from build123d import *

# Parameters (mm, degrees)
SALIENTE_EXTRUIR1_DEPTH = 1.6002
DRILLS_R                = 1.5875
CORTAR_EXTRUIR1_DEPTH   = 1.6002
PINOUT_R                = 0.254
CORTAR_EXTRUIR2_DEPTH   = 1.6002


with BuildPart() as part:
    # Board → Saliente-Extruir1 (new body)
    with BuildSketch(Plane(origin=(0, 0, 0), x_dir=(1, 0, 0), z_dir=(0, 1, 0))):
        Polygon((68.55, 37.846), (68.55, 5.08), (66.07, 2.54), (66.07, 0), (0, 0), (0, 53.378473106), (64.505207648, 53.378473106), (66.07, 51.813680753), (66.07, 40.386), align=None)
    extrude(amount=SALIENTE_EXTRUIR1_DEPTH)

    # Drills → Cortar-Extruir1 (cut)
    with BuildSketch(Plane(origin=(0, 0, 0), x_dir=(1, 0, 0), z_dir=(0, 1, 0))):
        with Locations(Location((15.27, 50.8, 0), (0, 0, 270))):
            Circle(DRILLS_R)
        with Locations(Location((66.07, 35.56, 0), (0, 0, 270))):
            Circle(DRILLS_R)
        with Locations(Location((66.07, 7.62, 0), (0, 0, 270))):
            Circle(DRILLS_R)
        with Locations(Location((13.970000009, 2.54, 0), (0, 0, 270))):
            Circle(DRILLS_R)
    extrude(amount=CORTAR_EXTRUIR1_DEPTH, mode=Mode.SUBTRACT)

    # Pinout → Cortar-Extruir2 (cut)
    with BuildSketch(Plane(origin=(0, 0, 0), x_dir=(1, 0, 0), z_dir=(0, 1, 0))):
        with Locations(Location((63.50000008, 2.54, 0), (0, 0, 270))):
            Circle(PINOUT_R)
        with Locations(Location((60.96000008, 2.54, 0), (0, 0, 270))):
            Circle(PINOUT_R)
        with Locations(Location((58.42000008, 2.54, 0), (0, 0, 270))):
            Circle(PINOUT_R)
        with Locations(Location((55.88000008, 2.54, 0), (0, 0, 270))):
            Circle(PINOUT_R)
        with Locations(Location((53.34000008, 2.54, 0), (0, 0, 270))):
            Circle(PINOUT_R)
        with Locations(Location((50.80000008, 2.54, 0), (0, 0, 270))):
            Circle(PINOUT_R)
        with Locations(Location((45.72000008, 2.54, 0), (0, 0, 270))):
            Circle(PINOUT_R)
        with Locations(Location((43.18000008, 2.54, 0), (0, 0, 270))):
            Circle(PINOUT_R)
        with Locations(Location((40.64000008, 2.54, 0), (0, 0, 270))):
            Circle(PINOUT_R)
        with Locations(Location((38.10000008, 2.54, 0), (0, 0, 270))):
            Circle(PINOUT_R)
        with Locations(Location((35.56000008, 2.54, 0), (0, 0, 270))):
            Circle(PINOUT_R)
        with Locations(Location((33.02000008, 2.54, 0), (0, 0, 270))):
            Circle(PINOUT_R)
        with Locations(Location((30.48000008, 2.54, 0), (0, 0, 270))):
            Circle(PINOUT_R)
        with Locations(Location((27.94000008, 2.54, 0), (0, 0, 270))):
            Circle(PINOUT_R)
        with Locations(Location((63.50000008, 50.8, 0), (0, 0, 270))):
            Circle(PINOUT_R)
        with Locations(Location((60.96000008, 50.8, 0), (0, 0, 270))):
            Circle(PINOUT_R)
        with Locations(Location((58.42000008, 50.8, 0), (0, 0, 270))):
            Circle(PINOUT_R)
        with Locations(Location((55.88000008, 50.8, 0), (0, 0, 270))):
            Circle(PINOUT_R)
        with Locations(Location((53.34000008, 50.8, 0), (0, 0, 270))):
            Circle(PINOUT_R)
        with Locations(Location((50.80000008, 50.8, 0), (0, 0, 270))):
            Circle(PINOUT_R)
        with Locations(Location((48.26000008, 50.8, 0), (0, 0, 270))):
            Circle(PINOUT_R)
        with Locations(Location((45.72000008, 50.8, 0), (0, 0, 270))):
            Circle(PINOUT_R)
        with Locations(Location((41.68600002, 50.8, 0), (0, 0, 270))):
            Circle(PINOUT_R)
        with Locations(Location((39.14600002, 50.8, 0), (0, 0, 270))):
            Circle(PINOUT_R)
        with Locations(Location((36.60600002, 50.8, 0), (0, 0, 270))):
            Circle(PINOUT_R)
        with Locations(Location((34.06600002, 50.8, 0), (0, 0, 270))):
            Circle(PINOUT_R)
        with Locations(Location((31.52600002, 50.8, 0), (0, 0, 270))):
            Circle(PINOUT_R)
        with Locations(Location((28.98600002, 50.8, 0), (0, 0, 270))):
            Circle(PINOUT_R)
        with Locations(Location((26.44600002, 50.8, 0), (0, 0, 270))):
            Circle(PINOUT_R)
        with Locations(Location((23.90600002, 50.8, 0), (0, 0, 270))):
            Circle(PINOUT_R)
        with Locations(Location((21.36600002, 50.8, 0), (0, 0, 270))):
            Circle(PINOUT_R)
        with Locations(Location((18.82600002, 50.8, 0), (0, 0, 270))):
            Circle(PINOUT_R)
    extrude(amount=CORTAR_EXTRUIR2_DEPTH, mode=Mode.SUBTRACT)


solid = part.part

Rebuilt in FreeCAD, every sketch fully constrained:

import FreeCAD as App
import Part
import Sketcher
Q = App.Units.Quantity

doc = App.newDocument("Part")
body = doc.addObject("PartDesign::Body", "Body")

# Sketch on XZ plane
sketch1 = body.newObject("Sketcher::SketchObject", "Sketch")
sketch1.AttachmentSupport = (doc.getObject("XZ_Plane"), [""])
sketch1.MapMode = "FlatFace"
sketch1.addGeometry(Part.LineSegment(App.Vector(68.5, -5.1, 0), App.Vector(68.5, -37.8, 0)), False)
sketch1.addGeometry(Part.LineSegment(App.Vector(68.5, -37.8, 0), App.Vector(66.1, -40.4, 0)), False)
sketch1.addGeometry(Part.LineSegment(App.Vector(66.1, -40.4, 0), App.Vector(66.1, -51.8, 0)), False)
sketch1.addGeometry(Part.LineSegment(App.Vector(66.1, -51.8, 0), App.Vector(64.5, -53.4, 0)), False)
sketch1.addGeometry(Part.LineSegment(App.Vector(64.5, -53.4, 0), App.Vector(0, -53.4, 0)), False)
sketch1.addGeometry(Part.LineSegment(App.Vector(0, -53.4, 0), App.Vector(0, 0, 0)), False)
sketch1.addGeometry(Part.LineSegment(App.Vector(0, 0, 0), App.Vector(66.1, 0, 0)), False)
sketch1.addGeometry(Part.LineSegment(App.Vector(66.1, 0, 0), App.Vector(66.1, -2.5, 0)), False)
sketch1.addGeometry(Part.LineSegment(App.Vector(66.1, -2.5, 0), App.Vector(68.5, -5.1, 0)), False)
sketch1.addConstraint(Sketcher.Constraint("Coincident", 0, 2, 1, 1))
sketch1.addConstraint(Sketcher.Constraint("Coincident", 1, 2, 2, 1))
sketch1.addConstraint(Sketcher.Constraint("Coincident", 2, 2, 3, 1))
sketch1.addConstraint(Sketcher.Constraint("Coincident", 3, 2, 4, 1))
sketch1.addConstraint(Sketcher.Constraint("Coincident", 4, 2, 5, 1))
sketch1.addConstraint(Sketcher.Constraint("Coincident", 5, 2, 6, 1))
sketch1.addConstraint(Sketcher.Constraint("Coincident", 6, 2, 7, 1))
sketch1.addConstraint(Sketcher.Constraint("Coincident", 7, 2, 8, 1))
sketch1.addConstraint(Sketcher.Constraint("Coincident", 8, 2, 0, 1))
sketch1.addConstraint(Sketcher.Constraint("Vertical", 0))
sketch1.addConstraint(Sketcher.Constraint("Vertical", 2))
sketch1.addConstraint(Sketcher.Constraint("Horizontal", 4))
sketch1.addConstraint(Sketcher.Constraint("Vertical", 5))
sketch1.addConstraint(Sketcher.Constraint("Horizontal", 6))
sketch1.addConstraint(Sketcher.Constraint("Vertical", 7))
sketch1.addConstraint(Sketcher.Constraint("Coincident", 5, 2, -1, 1))
sketch1.addConstraint(Sketcher.Constraint("Vertical", 2, 2, 6, 2))
sketch1.addConstraint(Sketcher.Constraint("Equal", 1, 8))
sketch1.addConstraint(Sketcher.Constraint("DistanceY", 7, 2, 7, 1, Q("0.1 in")))
sketch1.addConstraint(Sketcher.Constraint("Angle", 3, Q("-135 deg")))
sketch1.addConstraint(Sketcher.Constraint("DistanceY", 0, 2, 0, 1, Q("1.29 in")))
sketch1.addConstraint(Sketcher.Constraint("DistanceY", 8, 2, -1, 1, Q("0.2 in")))
sketch1.addConstraint(Sketcher.Constraint("DistanceX", 6, 1, 6, 2, 66.07))
sketch1.addConstraint(Sketcher.Constraint("DistanceY", 2, 2, 2, 1, 11.427681))
sketch1.addConstraint(Sketcher.Constraint("DistanceX", -1, 1, 0, 2, 68.55))
sketch1.addConstraint(Sketcher.Constraint("Distance", 3, 2.212951))
pad1 = body.newObject("PartDesign::Pad", "Pad")
pad1.Profile = sketch1
pad1.Length = Q("0.063 in")
pad1.Reversed = True

# Sketch on XZ plane
sketch2 = body.newObject("Sketcher::SketchObject", "Sketch001")
sketch2.AttachmentSupport = (doc.getObject("XZ_Plane"), [""])
sketch2.MapMode = "FlatFace"
sketch2.addGeometry(Part.Circle(App.Vector(15.3, -50.8, 0), App.Vector(0, 0, 1), 1.6), False)
sketch2.addGeometry(Part.Circle(App.Vector(66.1, -35.6, 0), App.Vector(0, 0, 1), 1.6), False)
sketch2.addGeometry(Part.Circle(App.Vector(66.1, -7.6, 0), App.Vector(0, 0, 1), 1.6), False)
sketch2.addGeometry(Part.Circle(App.Vector(14, -2.5, 0), App.Vector(0, 0, 1), 1.6), False)
sketch2.addConstraint(Sketcher.Constraint("Equal", 0, 1))
sketch2.addConstraint(Sketcher.Constraint("Equal", 1, 2))
sketch2.addConstraint(Sketcher.Constraint("Equal", 2, 3))
sketch2.addConstraint(Sketcher.Constraint("Vertical", 1, 3, 2, 3))
sketch2.addConstraint(Sketcher.Constraint("Diameter", 0, Q("0.125 in")))
sketch2.addConstraint(Sketcher.Constraint("DistanceY", 0, 3, -1, 1, Q("2 in")))
sketch2.addConstraint(Sketcher.Constraint("DistanceX", 0, 3, 1, 3, Q("2 in")))
sketch2.addConstraint(Sketcher.Constraint("DistanceY", 1, 3, -1, 1, Q("1.4 in")))
sketch2.addConstraint(Sketcher.Constraint("DistanceY", 2, 3, -1, 1, Q("0.3 in")))
sketch2.addConstraint(Sketcher.Constraint("DistanceY", 3, 3, -1, 1, Q("0.1 in")))
sketch2.addConstraint(Sketcher.Constraint("DistanceX", -1, 1, 3, 3, Q("0.55 in")))
sketch2.addConstraint(Sketcher.Constraint("DistanceX", -1, 1, 0, 3, 15.27))
pocket1 = body.newObject("PartDesign::Pocket", "Pocket")
pocket1.Profile = sketch2
pocket1.Length = Q("0.063 in")

# Sketch on XZ plane
sketch3 = body.newObject("Sketcher::SketchObject", "Sketch002")
sketch3.AttachmentSupport = (doc.getObject("XZ_Plane"), [""])
sketch3.MapMode = "FlatFace"
sketch3.addGeometry(Part.Circle(App.Vector(63.5, -2.54, 0), App.Vector(0, 0, 1), 0.25), False)
sketch3.addGeometry(Part.Circle(App.Vector(60.96, -2.54, 0), App.Vector(0, 0, 1), 0.25), False)
sketch3.addGeometry(Part.Circle(App.Vector(58.42, -2.54, 0), App.Vector(0, 0, 1), 0.25), False)
sketch3.addGeometry(Part.Circle(App.Vector(55.88, -2.54, 0), App.Vector(0, 0, 1), 0.25), False)
sketch3.addGeometry(Part.Circle(App.Vector(53.34, -2.54, 0), App.Vector(0, 0, 1), 0.25), False)
sketch3.addGeometry(Part.Circle(App.Vector(50.8, -2.54, 0), App.Vector(0, 0, 1), 0.25), False)
sketch3.addGeometry(Part.Circle(App.Vector(45.72, -2.54, 0), App.Vector(0, 0, 1), 0.25), False)
sketch3.addGeometry(Part.Circle(App.Vector(43.18, -2.54, 0), App.Vector(0, 0, 1), 0.25), False)
sketch3.addGeometry(Part.Circle(App.Vector(40.64, -2.54, 0), App.Vector(0, 0, 1), 0.25), False)
sketch3.addGeometry(Part.Circle(App.Vector(38.1, -2.54, 0), App.Vector(0, 0, 1), 0.25), False)
sketch3.addGeometry(Part.Circle(App.Vector(35.56, -2.54, 0), App.Vector(0, 0, 1), 0.25), False)
sketch3.addGeometry(Part.Circle(App.Vector(33.02, -2.54, 0), App.Vector(0, 0, 1), 0.25), False)
sketch3.addGeometry(Part.Circle(App.Vector(30.48, -2.54, 0), App.Vector(0, 0, 1), 0.25), False)
sketch3.addGeometry(Part.Circle(App.Vector(27.94, -2.54, 0), App.Vector(0, 0, 1), 0.25), False)
sketch3.addGeometry(Part.Circle(App.Vector(63.5, -50.8, 0), App.Vector(0, 0, 1), 0.25), False)
sketch3.addGeometry(Part.Circle(App.Vector(60.96, -50.8, 0), App.Vector(0, 0, 1), 0.25), False)
sketch3.addGeometry(Part.Circle(App.Vector(58.42, -50.8, 0), App.Vector(0, 0, 1), 0.25), False)
sketch3.addGeometry(Part.Circle(App.Vector(55.88, -50.8, 0), App.Vector(0, 0, 1), 0.25), False)
sketch3.addGeometry(Part.Circle(App.Vector(53.34, -50.8, 0), App.Vector(0, 0, 1), 0.25), False)
sketch3.addGeometry(Part.Circle(App.Vector(50.8, -50.8, 0), App.Vector(0, 0, 1), 0.25), False)
sketch3.addGeometry(Part.Circle(App.Vector(48.26, -50.8, 0), App.Vector(0, 0, 1), 0.25), False)
sketch3.addGeometry(Part.Circle(App.Vector(45.72, -50.8, 0), App.Vector(0, 0, 1), 0.25), False)
sketch3.addGeometry(Part.Circle(App.Vector(41.69, -50.8, 0), App.Vector(0, 0, 1), 0.25), False)
sketch3.addGeometry(Part.Circle(App.Vector(39.15, -50.8, 0), App.Vector(0, 0, 1), 0.25), False)
sketch3.addGeometry(Part.Circle(App.Vector(36.61, -50.8, 0), App.Vector(0, 0, 1), 0.25), False)
sketch3.addGeometry(Part.Circle(App.Vector(34.07, -50.8, 0), App.Vector(0, 0, 1), 0.25), False)
sketch3.addGeometry(Part.Circle(App.Vector(31.53, -50.8, 0), App.Vector(0, 0, 1), 0.25), False)
sketch3.addGeometry(Part.Circle(App.Vector(28.99, -50.8, 0), App.Vector(0, 0, 1), 0.25), False)
sketch3.addGeometry(Part.Circle(App.Vector(26.45, -50.8, 0), App.Vector(0, 0, 1), 0.25), False)
sketch3.addGeometry(Part.Circle(App.Vector(23.91, -50.8, 0), App.Vector(0, 0, 1), 0.25), False)
sketch3.addGeometry(Part.Circle(App.Vector(21.37, -50.8, 0), App.Vector(0, 0, 1), 0.25), False)
sketch3.addGeometry(Part.Circle(App.Vector(18.83, -50.8, 0), App.Vector(0, 0, 1), 0.25), False)
sketch3.addConstraint(Sketcher.Constraint("Equal", 0, 1))
sketch3.addConstraint(Sketcher.Constraint("Equal", 1, 2))
sketch3.addConstraint(Sketcher.Constraint("Equal", 2, 3))
sketch3.addConstraint(Sketcher.Constraint("Equal", 3, 4))
sketch3.addConstraint(Sketcher.Constraint("Equal", 4, 5))
sketch3.addConstraint(Sketcher.Constraint("Equal", 5, 6))
sketch3.addConstraint(Sketcher.Constraint("Equal", 6, 7))
sketch3.addConstraint(Sketcher.Constraint("Equal", 7, 8))
sketch3.addConstraint(Sketcher.Constraint("Equal", 8, 9))
sketch3.addConstraint(Sketcher.Constraint("Equal", 9, 10))
sketch3.addConstraint(Sketcher.Constraint("Equal", 10, 11))
sketch3.addConstraint(Sketcher.Constraint("Equal", 11, 12))
sketch3.addConstraint(Sketcher.Constraint("Equal", 12, 13))
sketch3.addConstraint(Sketcher.Constraint("Equal", 13, 14))
sketch3.addConstraint(Sketcher.Constraint("Equal", 14, 15))
sketch3.addConstraint(Sketcher.Constraint("Equal", 15, 16))
sketch3.addConstraint(Sketcher.Constraint("Equal", 16, 17))
sketch3.addConstraint(Sketcher.Constraint("Equal", 17, 18))
sketch3.addConstraint(Sketcher.Constraint("Equal", 18, 19))
sketch3.addConstraint(Sketcher.Constraint("Equal", 19, 20))
sketch3.addConstraint(Sketcher.Constraint("Equal", 20, 21))
sketch3.addConstraint(Sketcher.Constraint("Equal", 21, 22))
sketch3.addConstraint(Sketcher.Constraint("Equal", 22, 23))
sketch3.addConstraint(Sketcher.Constraint("Equal", 23, 24))
sketch3.addConstraint(Sketcher.Constraint("Equal", 24, 25))
sketch3.addConstraint(Sketcher.Constraint("Equal", 25, 26))
sketch3.addConstraint(Sketcher.Constraint("Equal", 26, 27))
sketch3.addConstraint(Sketcher.Constraint("Equal", 27, 28))
sketch3.addConstraint(Sketcher.Constraint("Equal", 28, 29))
sketch3.addConstraint(Sketcher.Constraint("Equal", 29, 30))
sketch3.addConstraint(Sketcher.Constraint("Equal", 30, 31))
sketch3.addConstraint(Sketcher.Constraint("Horizontal", 0, 3, 1, 3))
sketch3.addConstraint(Sketcher.Constraint("Horizontal", 1, 3, 2, 3))
sketch3.addConstraint(Sketcher.Constraint("Horizontal", 2, 3, 3, 3))
sketch3.addConstraint(Sketcher.Constraint("Horizontal", 3, 3, 4, 3))
sketch3.addConstraint(Sketcher.Constraint("Horizontal", 4, 3, 5, 3))
sketch3.addConstraint(Sketcher.Constraint("Horizontal", 5, 3, 6, 3))
sketch3.addConstraint(Sketcher.Constraint("Horizontal", 6, 3, 7, 3))
sketch3.addConstraint(Sketcher.Constraint("Horizontal", 7, 3, 8, 3))
sketch3.addConstraint(Sketcher.Constraint("Horizontal", 8, 3, 9, 3))
sketch3.addConstraint(Sketcher.Constraint("Horizontal", 9, 3, 10, 3))
sketch3.addConstraint(Sketcher.Constraint("Horizontal", 10, 3, 11, 3))
sketch3.addConstraint(Sketcher.Constraint("Horizontal", 11, 3, 12, 3))
sketch3.addConstraint(Sketcher.Constraint("Horizontal", 12, 3, 13, 3))
sketch3.addConstraint(Sketcher.Constraint("Horizontal", 14, 3, 15, 3))
sketch3.addConstraint(Sketcher.Constraint("Horizontal", 15, 3, 16, 3))
sketch3.addConstraint(Sketcher.Constraint("Horizontal", 16, 3, 17, 3))
sketch3.addConstraint(Sketcher.Constraint("Horizontal", 17, 3, 18, 3))
sketch3.addConstraint(Sketcher.Constraint("Horizontal", 18, 3, 19, 3))
sketch3.addConstraint(Sketcher.Constraint("Horizontal", 19, 3, 20, 3))
sketch3.addConstraint(Sketcher.Constraint("Horizontal", 20, 3, 21, 3))
sketch3.addConstraint(Sketcher.Constraint("Horizontal", 21, 3, 22, 3))
sketch3.addConstraint(Sketcher.Constraint("Horizontal", 22, 3, 23, 3))
sketch3.addConstraint(Sketcher.Constraint("Horizontal", 23, 3, 24, 3))
sketch3.addConstraint(Sketcher.Constraint("Horizontal", 24, 3, 25, 3))
sketch3.addConstraint(Sketcher.Constraint("Horizontal", 25, 3, 26, 3))
sketch3.addConstraint(Sketcher.Constraint("Horizontal", 26, 3, 27, 3))
sketch3.addConstraint(Sketcher.Constraint("Horizontal", 27, 3, 28, 3))
sketch3.addConstraint(Sketcher.Constraint("Horizontal", 28, 3, 29, 3))
sketch3.addConstraint(Sketcher.Constraint("Horizontal", 29, 3, 30, 3))
sketch3.addConstraint(Sketcher.Constraint("Horizontal", 30, 3, 31, 3))
sketch3.addConstraint(Sketcher.Constraint("Vertical", 0, 3, 14, 3))
sketch3.addConstraint(Sketcher.Constraint("Vertical", 1, 3, 15, 3))
sketch3.addConstraint(Sketcher.Constraint("Vertical", 2, 3, 16, 3))
sketch3.addConstraint(Sketcher.Constraint("Vertical", 3, 3, 17, 3))
sketch3.addConstraint(Sketcher.Constraint("Vertical", 4, 3, 18, 3))
sketch3.addConstraint(Sketcher.Constraint("Vertical", 5, 3, 19, 3))
sketch3.addConstraint(Sketcher.Constraint("Vertical", 6, 3, 21, 3))
sketch3.addConstraint(Sketcher.Constraint("Diameter", 0, Q("0.02 in")))
sketch3.addConstraint(Sketcher.Constraint("DistanceX", -1, 1, 5, 3, Q("2 in")))
sketch3.addConstraint(Sketcher.Constraint("DistanceY", 14, 3, -1, 1, Q("2 in")))
sketch3.addConstraint(Sketcher.Constraint("DistanceX", -1, 1, 0, 3, Q("2.5 in")))
sketch3.addConstraint(Sketcher.Constraint("DistanceY", 0, 3, -1, 1, Q("0.1 in")))
sketch3.addConstraint(Sketcher.Constraint("DistanceX", -1, 1, 1, 3, Q("2.4 in")))
sketch3.addConstraint(Sketcher.Constraint("DistanceX", -1, 1, 2, 3, Q("2.3 in")))
sketch3.addConstraint(Sketcher.Constraint("DistanceX", -1, 1, 3, 3, Q("2.2 in")))
sketch3.addConstraint(Sketcher.Constraint("DistanceX", -1, 1, 4, 3, Q("2.1 in")))
sketch3.addConstraint(Sketcher.Constraint("DistanceX", -1, 1, 6, 3, Q("1.8 in")))
sketch3.addConstraint(Sketcher.Constraint("DistanceX", -1, 1, 7, 3, Q("1.7 in")))
sketch3.addConstraint(Sketcher.Constraint("DistanceX", -1, 1, 8, 3, Q("1.6 in")))
sketch3.addConstraint(Sketcher.Constraint("DistanceX", -1, 1, 9, 3, Q("1.5 in")))
sketch3.addConstraint(Sketcher.Constraint("DistanceX", -1, 1, 10, 3, Q("1.4 in")))
sketch3.addConstraint(Sketcher.Constraint("DistanceX", -1, 1, 11, 3, Q("1.3 in")))
sketch3.addConstraint(Sketcher.Constraint("DistanceX", -1, 1, 12, 3, Q("1.2 in")))
sketch3.addConstraint(Sketcher.Constraint("DistanceX", -1, 1, 13, 3, Q("1.1 in")))
sketch3.addConstraint(Sketcher.Constraint("DistanceX", -1, 1, 20, 3, Q("1.9 in")))
sketch3.addConstraint(Sketcher.Constraint("DistanceX", 23, 3, 22, 3, Q("0.1 in")))
sketch3.addConstraint(Sketcher.Constraint("DistanceX", 24, 3, 23, 3, Q("0.1 in")))
sketch3.addConstraint(Sketcher.Constraint("DistanceX", 25, 3, 24, 3, Q("0.1 in")))
sketch3.addConstraint(Sketcher.Constraint("DistanceX", 26, 3, 25, 3, Q("0.1 in")))
sketch3.addConstraint(Sketcher.Constraint("DistanceX", 27, 3, 26, 3, Q("0.1 in")))
sketch3.addConstraint(Sketcher.Constraint("DistanceX", 28, 3, 27, 3, Q("0.1 in")))
sketch3.addConstraint(Sketcher.Constraint("DistanceX", 29, 3, 28, 3, Q("0.1 in")))
sketch3.addConstraint(Sketcher.Constraint("DistanceX", 30, 3, 29, 3, Q("0.1 in")))
sketch3.addConstraint(Sketcher.Constraint("DistanceX", 31, 3, 30, 3, Q("0.1 in")))
sketch3.addConstraint(Sketcher.Constraint("DistanceX", -1, 1, 22, 3, 41.686))
pocket2 = body.newObject("PartDesign::Pocket", "Pocket001")
pocket2.Profile = sketch3
pocket2.Length = Q("0.063 in")

doc.recompute()
